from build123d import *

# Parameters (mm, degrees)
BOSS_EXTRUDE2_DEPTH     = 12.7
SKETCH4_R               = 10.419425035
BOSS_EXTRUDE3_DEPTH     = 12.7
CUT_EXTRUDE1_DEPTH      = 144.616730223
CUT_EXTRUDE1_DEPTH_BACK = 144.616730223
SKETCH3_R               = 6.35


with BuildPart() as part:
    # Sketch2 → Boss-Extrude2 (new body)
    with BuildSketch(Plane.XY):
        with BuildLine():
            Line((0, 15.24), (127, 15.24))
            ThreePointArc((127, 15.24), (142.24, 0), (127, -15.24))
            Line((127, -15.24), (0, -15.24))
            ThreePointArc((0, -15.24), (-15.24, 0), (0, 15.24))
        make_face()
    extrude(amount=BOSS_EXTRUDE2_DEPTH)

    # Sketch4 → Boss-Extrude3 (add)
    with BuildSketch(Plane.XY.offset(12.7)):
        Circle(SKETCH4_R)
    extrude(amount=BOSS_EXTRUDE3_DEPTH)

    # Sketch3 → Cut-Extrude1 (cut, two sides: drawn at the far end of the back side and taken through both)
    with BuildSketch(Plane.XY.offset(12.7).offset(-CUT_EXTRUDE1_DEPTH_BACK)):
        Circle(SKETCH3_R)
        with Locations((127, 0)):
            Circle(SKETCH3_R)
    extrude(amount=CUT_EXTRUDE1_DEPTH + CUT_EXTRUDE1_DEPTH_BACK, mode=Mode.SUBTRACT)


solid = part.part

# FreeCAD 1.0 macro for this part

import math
import FreeCAD as App
import Part
import Sketcher
Q = App.Units.Quantity

doc = App.newDocument("Part")
body = doc.addObject("PartDesign::Body", "Body")

# Sketch on XY plane
sketch1 = doc.addObject("Sketcher::SketchObject", "Sketch")
body.addObject(sketch1)
sketch1.AttachmentSupport = (doc.XY_Plane, [""])
sketch1.MapMode = "FlatFace"
sketch1.addGeometry(Part.LineSegment(App.Vector(127, 15, 0), App.Vector(0, 15, 0)), False)
sketch1.addGeometry(Part.ArcOfCircle(Part.Circle(App.Vector(0, 0, 0), App.Vector(0, 0, 1), 15), math.radians(90), math.radians(270)), False)
sketch1.addGeometry(Part.LineSegment(App.Vector(0, -15, 0), App.Vector(127, -15, 0)), False)
sketch1.addGeometry(Part.ArcOfCircle(Part.Circle(App.Vector(127, 0, 0), App.Vector(0, 0, 1), 15), math.radians(-90), math.radians(90)), False)
sketch1.addConstraint(Sketcher.Constraint("Tangent", 0, 2, 1, 1))
sketch1.addConstraint(Sketcher.Constraint("Tangent", 1, 2, 2, 1))
sketch1.addConstraint(Sketcher.Constraint("Tangent", 2, 2, 3, 1))
sketch1.addConstraint(Sketcher.Constraint("Tangent", 3, 2, 0, 1))
sketch1.addConstraint(Sketcher.Constraint("Horizontal", 0))
sketch1.addConstraint(Sketcher.Constraint("Horizontal", 2))
sketch1.addConstraint(Sketcher.Constraint("Coincident", 1, 3, -1, 1))
sketch1.addConstraint(Sketcher.Constraint("Radius", 1, Q("0.6 in")))
sketch1.addConstraint(Sketcher.Constraint("DistanceX", 0, 2, 0, 1, Q("5 in")))
pad1 = doc.addObject("PartDesign::Pad", "Pad")
body.addObject(pad1)
pad1.Profile = sketch1
pad1.Length = Q("0.5 in")

# Sketch on XY plane
sketch2 = doc.addObject("Sketcher::SketchObject", "Sketch001")
body.addObject(sketch2)
sketch2.AttachmentSupport = (doc.XY_Plane, [""])
sketch2.MapMode = "FlatFace"
sketch2.AttachmentOffset = App.Placement(App.Vector(0, 0, 0.5 * 25.4), App.Rotation())
sketch2.addGeometry(Part.Circle(App.Vector(0, 0, 0), App.Vector(0, 0, 1), 10), False)
sketch2.addConstraint(Sketcher.Constraint("Coincident", 0, 3, -1, 1))
sketch2.addConstraint(Sketcher.Constraint("Diameter", 0, 20.83885))
pad2 = doc.addObject("PartDesign::Pad", "Pad001")
body.addObject(pad2)
pad2.Profile = sketch2
pad2.Length = Q("0.5 in")

# Sketch on XY plane
sketch3 = doc.addObject("Sketcher::SketchObject", "Sketch002")
body.addObject(sketch3)
sketch3.AttachmentSupport = (doc.XY_Plane, [""])
sketch3.MapMode = "FlatFace"
sketch3.AttachmentOffset = App.Placement(App.Vector(0, 0, 0.5 * 25.4), App.Rotation())
sketch3.addGeometry(Part.Circle(App.Vector(0, 0, 0), App.Vector(0, 0, 1), 6), False)
sketch3.addGeometry(Part.Circle(App.Vector(127, 0, 0), App.Vector(0, 0, 1), 6), False)
sketch3.addConstraint(Sketcher.Constraint("Coincident", 0, 3, -1, 1))
sketch3.addConstraint(Sketcher.Constraint("Equal", 0, 1))
sketch3.addConstraint(Sketcher.Constraint("PointOnObject", 1, 3, -1))
sketch3.addConstraint(Sketcher.Constraint("Diameter", 0, Q("0.5 in")))
sketch3.addConstraint(Sketcher.Constraint("DistanceX", -1, 1, 1, 3, Q("5 in")))
pocket1 = doc.addObject("PartDesign::Pocket", "Pocket")
body.addObject(pocket1)
pocket1.Profile = sketch3
pocket1.Type = "ThroughAll"
pocket1.Midplane = True

doc.recompute()
